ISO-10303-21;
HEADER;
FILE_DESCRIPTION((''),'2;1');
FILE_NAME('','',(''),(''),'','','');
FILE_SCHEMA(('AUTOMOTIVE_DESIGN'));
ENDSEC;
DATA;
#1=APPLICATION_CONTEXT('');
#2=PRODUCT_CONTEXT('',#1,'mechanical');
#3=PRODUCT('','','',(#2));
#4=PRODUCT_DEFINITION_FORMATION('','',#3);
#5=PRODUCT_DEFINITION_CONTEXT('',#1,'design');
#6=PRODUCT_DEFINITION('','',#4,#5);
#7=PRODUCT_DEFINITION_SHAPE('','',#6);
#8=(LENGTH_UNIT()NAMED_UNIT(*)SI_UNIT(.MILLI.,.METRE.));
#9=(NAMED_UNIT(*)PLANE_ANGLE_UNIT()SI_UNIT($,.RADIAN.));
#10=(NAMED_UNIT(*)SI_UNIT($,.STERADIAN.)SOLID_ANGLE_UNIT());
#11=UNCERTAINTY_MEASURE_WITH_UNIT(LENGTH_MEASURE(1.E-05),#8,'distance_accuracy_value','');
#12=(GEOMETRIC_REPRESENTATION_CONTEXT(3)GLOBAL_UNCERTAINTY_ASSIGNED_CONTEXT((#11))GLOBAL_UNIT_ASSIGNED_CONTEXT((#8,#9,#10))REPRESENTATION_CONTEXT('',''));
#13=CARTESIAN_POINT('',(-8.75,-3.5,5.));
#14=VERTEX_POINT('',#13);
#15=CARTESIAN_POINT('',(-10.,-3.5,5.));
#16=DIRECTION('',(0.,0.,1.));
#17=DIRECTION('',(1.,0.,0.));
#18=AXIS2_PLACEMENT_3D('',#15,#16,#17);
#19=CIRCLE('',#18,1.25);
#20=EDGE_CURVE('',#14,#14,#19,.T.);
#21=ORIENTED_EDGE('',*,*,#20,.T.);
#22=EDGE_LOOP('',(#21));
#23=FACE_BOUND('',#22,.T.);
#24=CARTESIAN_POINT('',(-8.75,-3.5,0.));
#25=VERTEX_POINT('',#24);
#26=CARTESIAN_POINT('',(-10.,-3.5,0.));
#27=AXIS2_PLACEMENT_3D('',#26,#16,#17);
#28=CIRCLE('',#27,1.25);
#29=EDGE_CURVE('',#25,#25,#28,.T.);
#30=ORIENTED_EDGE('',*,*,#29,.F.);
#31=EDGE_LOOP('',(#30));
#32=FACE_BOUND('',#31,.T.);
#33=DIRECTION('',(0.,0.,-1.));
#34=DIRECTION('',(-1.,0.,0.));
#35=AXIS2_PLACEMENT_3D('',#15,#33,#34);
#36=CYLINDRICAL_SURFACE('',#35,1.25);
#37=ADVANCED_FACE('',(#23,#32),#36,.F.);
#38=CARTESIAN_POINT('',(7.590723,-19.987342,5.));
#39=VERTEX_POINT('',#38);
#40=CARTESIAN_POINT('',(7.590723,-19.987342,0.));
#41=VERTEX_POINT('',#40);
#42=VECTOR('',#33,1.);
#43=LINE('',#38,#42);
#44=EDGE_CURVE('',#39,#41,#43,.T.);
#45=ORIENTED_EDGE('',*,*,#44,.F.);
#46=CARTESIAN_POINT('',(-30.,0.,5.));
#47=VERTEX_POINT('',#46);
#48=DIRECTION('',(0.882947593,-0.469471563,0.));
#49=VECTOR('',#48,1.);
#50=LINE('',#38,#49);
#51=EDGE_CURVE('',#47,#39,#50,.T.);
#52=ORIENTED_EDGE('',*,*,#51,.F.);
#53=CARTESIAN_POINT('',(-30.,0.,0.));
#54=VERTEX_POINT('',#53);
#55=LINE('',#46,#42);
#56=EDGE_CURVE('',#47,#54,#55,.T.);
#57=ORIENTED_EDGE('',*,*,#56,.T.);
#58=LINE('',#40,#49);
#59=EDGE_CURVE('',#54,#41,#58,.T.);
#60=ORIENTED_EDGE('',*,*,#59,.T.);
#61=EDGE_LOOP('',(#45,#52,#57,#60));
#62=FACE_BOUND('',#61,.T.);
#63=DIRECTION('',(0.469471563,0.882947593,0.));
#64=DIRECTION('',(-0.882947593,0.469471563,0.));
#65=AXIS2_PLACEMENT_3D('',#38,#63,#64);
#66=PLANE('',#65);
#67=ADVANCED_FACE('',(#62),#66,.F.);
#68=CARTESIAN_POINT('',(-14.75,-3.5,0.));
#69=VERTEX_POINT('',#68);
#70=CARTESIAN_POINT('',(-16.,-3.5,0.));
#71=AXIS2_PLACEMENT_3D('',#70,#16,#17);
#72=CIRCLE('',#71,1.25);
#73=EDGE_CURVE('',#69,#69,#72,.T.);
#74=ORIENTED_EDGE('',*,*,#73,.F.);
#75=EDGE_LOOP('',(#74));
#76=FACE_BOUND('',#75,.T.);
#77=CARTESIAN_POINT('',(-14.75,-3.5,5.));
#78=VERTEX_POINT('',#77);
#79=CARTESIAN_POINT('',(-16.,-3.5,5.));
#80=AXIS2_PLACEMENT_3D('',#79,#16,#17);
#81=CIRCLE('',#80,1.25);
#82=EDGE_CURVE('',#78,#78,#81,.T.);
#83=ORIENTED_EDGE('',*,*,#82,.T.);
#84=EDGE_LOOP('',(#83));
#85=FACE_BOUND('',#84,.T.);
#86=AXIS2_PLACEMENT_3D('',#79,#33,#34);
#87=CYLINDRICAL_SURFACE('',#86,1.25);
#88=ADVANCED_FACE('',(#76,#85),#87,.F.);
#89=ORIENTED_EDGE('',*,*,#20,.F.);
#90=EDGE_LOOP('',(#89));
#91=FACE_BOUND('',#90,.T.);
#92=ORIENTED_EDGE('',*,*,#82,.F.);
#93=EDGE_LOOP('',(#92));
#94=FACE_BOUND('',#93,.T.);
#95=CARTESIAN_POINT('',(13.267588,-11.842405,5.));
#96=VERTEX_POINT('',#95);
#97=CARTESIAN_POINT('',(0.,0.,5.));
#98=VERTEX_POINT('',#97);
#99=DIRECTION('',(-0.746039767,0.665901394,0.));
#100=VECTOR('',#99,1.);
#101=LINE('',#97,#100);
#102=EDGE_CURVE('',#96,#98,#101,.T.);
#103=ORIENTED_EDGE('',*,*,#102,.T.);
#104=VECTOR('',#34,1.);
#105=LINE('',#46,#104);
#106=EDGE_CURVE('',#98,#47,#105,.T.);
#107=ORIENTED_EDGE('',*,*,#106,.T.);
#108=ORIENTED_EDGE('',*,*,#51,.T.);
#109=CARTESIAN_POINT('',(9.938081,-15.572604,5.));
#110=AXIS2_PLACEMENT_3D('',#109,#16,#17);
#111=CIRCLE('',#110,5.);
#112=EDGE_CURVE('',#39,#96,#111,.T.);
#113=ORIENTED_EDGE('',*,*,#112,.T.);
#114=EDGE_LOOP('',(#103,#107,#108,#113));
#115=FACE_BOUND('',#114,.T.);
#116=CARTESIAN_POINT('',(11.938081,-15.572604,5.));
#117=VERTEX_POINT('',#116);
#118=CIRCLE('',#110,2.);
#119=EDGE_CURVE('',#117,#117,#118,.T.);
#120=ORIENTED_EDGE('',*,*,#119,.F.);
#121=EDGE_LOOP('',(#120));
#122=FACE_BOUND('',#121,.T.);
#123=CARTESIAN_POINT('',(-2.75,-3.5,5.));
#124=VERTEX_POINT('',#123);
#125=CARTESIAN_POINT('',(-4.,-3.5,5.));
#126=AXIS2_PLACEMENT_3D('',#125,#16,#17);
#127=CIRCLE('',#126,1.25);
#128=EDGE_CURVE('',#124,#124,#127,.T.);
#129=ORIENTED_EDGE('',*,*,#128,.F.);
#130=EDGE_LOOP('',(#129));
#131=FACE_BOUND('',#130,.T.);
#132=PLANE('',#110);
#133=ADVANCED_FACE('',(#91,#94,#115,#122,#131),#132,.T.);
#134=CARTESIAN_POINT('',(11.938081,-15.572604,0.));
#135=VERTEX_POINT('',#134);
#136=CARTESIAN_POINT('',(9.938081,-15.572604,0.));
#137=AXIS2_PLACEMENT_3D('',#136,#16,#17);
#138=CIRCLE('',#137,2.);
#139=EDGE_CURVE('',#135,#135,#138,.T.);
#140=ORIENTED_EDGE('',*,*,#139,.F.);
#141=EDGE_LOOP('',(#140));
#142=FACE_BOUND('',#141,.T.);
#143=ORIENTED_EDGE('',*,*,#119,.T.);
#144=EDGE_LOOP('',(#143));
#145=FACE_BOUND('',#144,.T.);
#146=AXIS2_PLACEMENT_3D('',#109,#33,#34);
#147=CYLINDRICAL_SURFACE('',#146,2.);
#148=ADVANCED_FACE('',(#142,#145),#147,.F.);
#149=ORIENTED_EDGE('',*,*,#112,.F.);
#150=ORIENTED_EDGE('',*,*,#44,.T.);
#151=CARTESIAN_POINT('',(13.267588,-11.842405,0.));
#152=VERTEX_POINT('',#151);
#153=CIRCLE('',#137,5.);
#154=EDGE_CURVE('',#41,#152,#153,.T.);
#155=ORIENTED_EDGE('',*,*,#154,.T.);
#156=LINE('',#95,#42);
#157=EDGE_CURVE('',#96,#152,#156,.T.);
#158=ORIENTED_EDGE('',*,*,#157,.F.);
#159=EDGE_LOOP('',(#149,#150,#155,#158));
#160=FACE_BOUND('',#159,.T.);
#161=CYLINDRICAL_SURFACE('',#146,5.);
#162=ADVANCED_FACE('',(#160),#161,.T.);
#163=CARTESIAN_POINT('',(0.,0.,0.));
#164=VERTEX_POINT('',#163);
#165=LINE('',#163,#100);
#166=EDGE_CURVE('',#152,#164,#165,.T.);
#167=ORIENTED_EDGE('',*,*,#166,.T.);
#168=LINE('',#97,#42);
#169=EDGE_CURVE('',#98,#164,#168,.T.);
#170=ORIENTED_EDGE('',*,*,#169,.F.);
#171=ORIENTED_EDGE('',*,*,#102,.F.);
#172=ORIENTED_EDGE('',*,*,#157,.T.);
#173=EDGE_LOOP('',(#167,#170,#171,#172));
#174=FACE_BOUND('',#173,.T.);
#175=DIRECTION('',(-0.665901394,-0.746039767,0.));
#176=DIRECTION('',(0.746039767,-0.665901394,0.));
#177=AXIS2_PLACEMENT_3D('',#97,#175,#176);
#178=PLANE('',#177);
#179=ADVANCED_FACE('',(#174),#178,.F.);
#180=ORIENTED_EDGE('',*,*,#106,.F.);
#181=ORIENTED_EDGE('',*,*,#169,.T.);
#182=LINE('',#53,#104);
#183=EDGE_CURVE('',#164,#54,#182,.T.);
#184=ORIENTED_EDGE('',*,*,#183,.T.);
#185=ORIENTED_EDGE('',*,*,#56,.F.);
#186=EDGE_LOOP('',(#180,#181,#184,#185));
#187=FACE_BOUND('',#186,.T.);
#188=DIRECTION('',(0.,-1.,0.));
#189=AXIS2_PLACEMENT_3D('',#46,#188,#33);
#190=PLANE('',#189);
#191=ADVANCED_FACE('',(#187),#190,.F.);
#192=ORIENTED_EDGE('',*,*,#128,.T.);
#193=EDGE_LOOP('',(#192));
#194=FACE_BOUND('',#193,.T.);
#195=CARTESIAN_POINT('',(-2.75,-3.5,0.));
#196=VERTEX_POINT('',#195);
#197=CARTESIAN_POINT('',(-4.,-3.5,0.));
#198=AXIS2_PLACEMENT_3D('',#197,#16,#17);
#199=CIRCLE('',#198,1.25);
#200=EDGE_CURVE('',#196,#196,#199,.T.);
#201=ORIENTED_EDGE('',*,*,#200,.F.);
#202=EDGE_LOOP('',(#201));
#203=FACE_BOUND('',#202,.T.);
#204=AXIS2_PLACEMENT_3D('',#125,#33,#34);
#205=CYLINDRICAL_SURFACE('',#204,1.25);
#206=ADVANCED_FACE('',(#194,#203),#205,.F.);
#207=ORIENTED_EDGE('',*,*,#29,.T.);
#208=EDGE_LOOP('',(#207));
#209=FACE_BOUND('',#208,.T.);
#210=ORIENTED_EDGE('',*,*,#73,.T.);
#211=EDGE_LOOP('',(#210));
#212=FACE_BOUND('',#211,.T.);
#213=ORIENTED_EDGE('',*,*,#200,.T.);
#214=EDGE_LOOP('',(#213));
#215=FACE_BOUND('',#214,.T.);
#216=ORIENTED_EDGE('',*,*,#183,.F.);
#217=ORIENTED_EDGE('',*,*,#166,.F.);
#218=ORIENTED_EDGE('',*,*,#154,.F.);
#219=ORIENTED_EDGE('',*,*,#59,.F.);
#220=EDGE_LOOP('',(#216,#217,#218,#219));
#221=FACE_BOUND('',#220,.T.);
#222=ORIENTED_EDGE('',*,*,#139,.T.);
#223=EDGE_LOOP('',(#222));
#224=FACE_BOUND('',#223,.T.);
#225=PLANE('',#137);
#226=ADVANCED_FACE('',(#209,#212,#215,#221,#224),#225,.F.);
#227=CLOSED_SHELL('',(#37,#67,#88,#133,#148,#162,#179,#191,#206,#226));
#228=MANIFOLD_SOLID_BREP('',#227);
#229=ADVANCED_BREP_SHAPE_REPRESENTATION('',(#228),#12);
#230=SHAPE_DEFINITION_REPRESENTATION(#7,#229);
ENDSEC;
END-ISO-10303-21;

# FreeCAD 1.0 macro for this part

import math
import FreeCAD as App
import Part
import Sketcher
from FreeCAD import Vector
Q = App.Units.Quantity

doc = App.newDocument("Part")
body = doc.addObject("PartDesign::Body", "Body")

# Sketch on XY plane
sketch1 = body.newObject("Sketcher::SketchObject", "Sketch")
sketch1.AttachmentSupport = (doc.getObject("XY_Plane"), [""])
sketch1.MapMode = "FlatFace"
sketch1.addGeometry([
    Part.LineSegment(Vector(0, 0, 0), Vector(-30, 0, 0)),  # 0
    Part.LineSegment(Vector(-30, 0, 0), Vector(7.6, -20, 0)),  # 1
    Part.ArcOfCircle(Part.Circle(Vector(9.9, -15.6, 0), Vector(0, 0, 1), 5), math.radians(-118), math.radians(48)),  # 2
    Part.LineSegment(Vector(13.3, -11.8, 0), Vector(0, 0, 0)),  # 3
    Part.Circle(Vector(9.9, -15.6, 0), Vector(0, 0, 1), 2),  # 4
    Part.Circle(Vector(-4, -3.5, 0), Vector(0, 0, 1), 1.2),  # 5
    Part.Circle(Vector(-10, -3.5, 0), Vector(0, 0, 1), 1.2),  # 6
    Part.Circle(Vector(-16, -3.5, 0), Vector(0, 0, 1), 1.2),  # 7
], False)
sketch1.addConstraint([
    Sketcher.Constraint("Coincident", 0, 2, 1, 1),
    Sketcher.Constraint("Tangent", 1, 2, 2, 1),
    Sketcher.Constraint("Tangent", 2, 2, 3, 1),
    Sketcher.Constraint("Coincident", 3, 2, 0, 1),
    Sketcher.Constraint("Horizontal", 0),
    Sketcher.Constraint("Coincident", 3, 2, -1, 1),
    Sketcher.Constraint("Coincident", 4, 3, 2, 3),
    Sketcher.Constraint("Equal", 5, 6),
    Sketcher.Constraint("Equal", 6, 7),
    Sketcher.Constraint("Horizontal", 5, 3, 6, 3),
    Sketcher.Constraint("Horizontal", 6, 3, 7, 3),
    Sketcher.Constraint("Diameter", 4, 4.0),
    Sketcher.Constraint("Radius", 2, 5.0),
    Sketcher.Constraint("Diameter", 5, 2.5),
    Sketcher.Constraint("DistanceX", 0, 2, 0, 1, 30.0),
    Sketcher.Constraint("Angle", 1, Q("-28 deg")),
    Sketcher.Constraint("DistanceX", 5, 3, -1, 1, 4.0),
    Sketcher.Constraint("DistanceX", 6, 3, -1, 1, 10.0),
    Sketcher.Constraint("DistanceX", 7, 3, -1, 1, 16.0),
    Sketcher.Constraint("DistanceY", 5, 3, -1, 1, 3.5),
    Sketcher.Constraint("DistanceY", 2, 3, 2, 2, 3.730199),
])
pad1 = body.newObject("PartDesign::Pad", "Pad")
pad1.Profile = sketch1
pad1.Length = 5

doc.recompute()
